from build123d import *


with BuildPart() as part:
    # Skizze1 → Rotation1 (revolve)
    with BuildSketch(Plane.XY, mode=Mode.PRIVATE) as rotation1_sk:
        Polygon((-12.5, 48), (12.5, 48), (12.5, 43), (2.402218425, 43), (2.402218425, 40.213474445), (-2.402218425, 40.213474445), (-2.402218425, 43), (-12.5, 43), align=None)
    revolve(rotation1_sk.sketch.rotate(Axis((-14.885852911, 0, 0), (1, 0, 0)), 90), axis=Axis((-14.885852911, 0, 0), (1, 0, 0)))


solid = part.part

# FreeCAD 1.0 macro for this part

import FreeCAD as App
import Part
import Sketcher

V = App.Vector
Q = App.Units.Quantity


def add_polygon(sketch, points):
    """Adds a closed chain of lines whose ends are joined by coincident constraints."""
    first, n = sketch.GeometryCount, len(points)
    for a, b in zip(points, points[1:] + points[:1]):
        sketch.addGeometry(Part.LineSegment(App.Vector(*a, 0), App.Vector(*b, 0)), False)
    for i in range(n):
        sketch.addConstraint(Sketcher.Constraint("Coincident", first + i, 2, first + (i + 1) % n, 1))

doc = App.newDocument("Part")
body = doc.addObject("PartDesign::Body", "Body")

# Sketch on XY plane
sketch1 = body.newObject("Sketcher::SketchObject", "Sketch")
sketch1.AttachmentSupport = (doc.getObject("XY_Plane"), [""])
sketch1.MapMode = "FlatFace"
add_polygon(sketch1, [(12.5, 48), (-12.5, 48), (-12.5, 43), (-2.402218, 43), (-2.402218, 40.213474), (2.402218, 40.213474), (2.402218, 43), (12.5, 43)])  # lines 0-7
sketch1.addConstraint(Sketcher.Constraint("Horizontal", 0))
sketch1.addConstraint(Sketcher.Constraint("Vertical", 1))
sketch1.addConstraint(Sketcher.Constraint("Horizontal", 2))
sketch1.addConstraint(Sketcher.Constraint("Vertical", 3))
sketch1.addConstraint(Sketcher.Constraint("Horizontal", 4))
sketch1.addConstraint(Sketcher.Constraint("Vertical", 5))
sketch1.addConstraint(Sketcher.Constraint("Horizontal", 6))
sketch1.addConstraint(Sketcher.Constraint("Vertical", 7))
sketch1.addConstraint(Sketcher.Constraint("Symmetric", 2, 2, 5, 2, -2))
sketch1.addConstraint(Sketcher.Constraint("Equal", 2, 6))
sketch1.addConstraint(Sketcher.Constraint("DistanceX", 0, 2, 0, 1, Q("25 mm")))
sketch1.addConstraint(Sketcher.Constraint("DistanceY", 1, 2, 1, 1, Q("5 mm")))
sketch1.addConstraint(Sketcher.Constraint("DistanceY", -1, 1, 0, 2, Q("48 mm")))
sketch1.addConstraint(Sketcher.Constraint("DistanceX", 2, 1, 2, 2, Q("10.097782 mm")))
sketch1.addConstraint(Sketcher.Constraint("DistanceY", 3, 2, 3, 1, Q("2.786526 mm")))
revolution = body.newObject("PartDesign::Revolution", "Revolution")
revolution.Profile = sketch1
revolution.ReferenceAxis = (sketch1, ["H_Axis"])
revolution.Angle = 360

doc.recompute()
